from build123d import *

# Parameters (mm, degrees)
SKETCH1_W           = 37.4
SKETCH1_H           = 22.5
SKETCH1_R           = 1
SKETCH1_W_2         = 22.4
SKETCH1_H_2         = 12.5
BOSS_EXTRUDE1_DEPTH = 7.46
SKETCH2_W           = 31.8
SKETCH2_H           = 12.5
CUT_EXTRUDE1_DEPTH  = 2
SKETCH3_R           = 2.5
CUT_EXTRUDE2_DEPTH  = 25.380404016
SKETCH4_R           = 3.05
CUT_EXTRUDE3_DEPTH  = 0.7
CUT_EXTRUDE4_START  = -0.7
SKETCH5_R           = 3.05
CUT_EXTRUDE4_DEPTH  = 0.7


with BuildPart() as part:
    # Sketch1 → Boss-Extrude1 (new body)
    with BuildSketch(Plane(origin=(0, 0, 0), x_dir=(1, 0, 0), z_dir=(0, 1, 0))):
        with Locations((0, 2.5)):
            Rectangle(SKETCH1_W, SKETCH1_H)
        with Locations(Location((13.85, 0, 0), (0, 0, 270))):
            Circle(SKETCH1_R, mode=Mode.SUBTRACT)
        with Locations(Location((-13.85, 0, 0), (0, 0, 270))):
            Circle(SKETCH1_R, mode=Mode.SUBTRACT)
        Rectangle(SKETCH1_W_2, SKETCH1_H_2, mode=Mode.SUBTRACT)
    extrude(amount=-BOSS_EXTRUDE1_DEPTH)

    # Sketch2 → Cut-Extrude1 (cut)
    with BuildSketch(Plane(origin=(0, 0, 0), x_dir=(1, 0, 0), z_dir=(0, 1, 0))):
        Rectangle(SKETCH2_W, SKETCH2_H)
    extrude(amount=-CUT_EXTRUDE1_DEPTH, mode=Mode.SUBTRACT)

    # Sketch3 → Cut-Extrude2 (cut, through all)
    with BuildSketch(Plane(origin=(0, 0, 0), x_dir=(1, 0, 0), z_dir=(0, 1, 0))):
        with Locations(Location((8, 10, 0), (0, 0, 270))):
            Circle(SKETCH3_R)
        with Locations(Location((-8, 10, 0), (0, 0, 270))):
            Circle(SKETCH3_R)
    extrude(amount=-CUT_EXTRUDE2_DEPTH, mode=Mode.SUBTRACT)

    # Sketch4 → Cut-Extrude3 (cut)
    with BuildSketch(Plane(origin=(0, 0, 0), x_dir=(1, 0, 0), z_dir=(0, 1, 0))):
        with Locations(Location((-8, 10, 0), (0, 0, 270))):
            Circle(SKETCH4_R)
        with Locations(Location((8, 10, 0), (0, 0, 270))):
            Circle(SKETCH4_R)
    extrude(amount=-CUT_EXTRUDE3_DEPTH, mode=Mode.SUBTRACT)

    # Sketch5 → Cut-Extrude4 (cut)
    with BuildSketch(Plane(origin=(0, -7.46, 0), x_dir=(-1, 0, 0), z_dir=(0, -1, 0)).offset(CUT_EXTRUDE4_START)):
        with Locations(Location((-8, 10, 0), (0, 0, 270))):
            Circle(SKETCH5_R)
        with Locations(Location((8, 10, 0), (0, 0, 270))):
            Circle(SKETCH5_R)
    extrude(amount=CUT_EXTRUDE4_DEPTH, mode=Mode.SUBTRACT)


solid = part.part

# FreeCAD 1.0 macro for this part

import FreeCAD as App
import Part
import Sketcher
Q = App.Units.Quantity


def add_polygon(sketch, points):
    """Adds a closed chain of lines whose ends are joined by coincident constraints."""
    first, n = sketch.GeometryCount, len(points)
    for a, b in zip(points, points[1:] + points[:1]):
        sketch.addGeometry(Part.LineSegment(App.Vector(*a, 0), App.Vector(*b, 0)), False)
    for i in range(n):
        sketch.addConstraint(Sketcher.Constraint("Coincident", first + i, 2, first + (i + 1) % n, 1))

doc = App.newDocument("Part")
params = doc.addObject("Spreadsheet::Sheet", "Params")
for row, (alias, value) in enumerate([
    ("sketch1_diameter", "2 mm"),
    ("sketch1_width", "37.4 mm"),
    ("sketch1_width2", "22.4 mm"),
    ("sketch1_height", "22.5 mm"),
    ("sketch1_height2", "12.5 mm"),
    ("pad1_length", "7.46 mm"),
    ("sketch2_width", "31.8 mm"),
    ("sketch2_height", "12.5 mm"),
    ("pocket1_length", "2 mm"),
    ("sketch3_diameter", "5 mm"),
    ("sketch4_diameter", "6.1 mm"),
    ("pocket3_length", "0.7 mm"),
    ("sketch5_diameter", "6.1 mm"),
    ("pocket4_length", "0.7 mm"),
], start=1):
    params.set(f"A{row}", alias)
    params.set(f"B{row}", "=" + value)
    params.setAlias(f"B{row}", alias)

body = doc.addObject("PartDesign::Body", "Body")

sketch1 = doc.addObject("Sketcher::SketchObject", "Sketch")
body.addObject(sketch1)
sketch1.AttachmentSupport = (doc.XZ_Plane, [""])
sketch1.MapMode = "FlatFace"
add_polygon(sketch1, [(-18.7, -13.8), (-18.7, 8.8), (18.7, 8.8), (18.7, -13.8)])
sketch1.addGeometry(Part.Circle(App.Vector(-13.8, 0, 0), App.Vector(0, 0, 1), 1), False)
add_polygon(sketch1, [(11.2, 6.2), (-11.2, 6.2), (-11.2, -6.2), (11.2, -6.2)])
sketch1.addGeometry(Part.Circle(App.Vector(13.8, 0, 0), App.Vector(0, 0, 1), 1), False)
sketch1.addConstraint([
    Sketcher.Constraint("Vertical", 0),
    Sketcher.Constraint("Horizontal", 1),
    Sketcher.Constraint("Vertical", 2),
    Sketcher.Constraint("Horizontal", 3),
    Sketcher.Constraint("Horizontal", 5),
    Sketcher.Constraint("Vertical", 6),
    Sketcher.Constraint("Horizontal", 7),
    Sketcher.Constraint("Vertical", 8),
    Sketcher.Constraint("Equal", 4, 9),
    Sketcher.Constraint("Symmetric", 4, 3, 9, 3, -1, 1),
    Sketcher.Constraint("Symmetric", 5, 2, 7, 2, -1, 1),
    Sketcher.Constraint("PointOnObject", 4, 3, -1),
    Sketcher.Constraint("Diameter", 4, Q("2 mm")),
    Sketcher.Constraint("DistanceX", 1, 1, 1, 2, Q("37.4 mm")),
    Sketcher.Constraint("DistanceX", 5, 2, 5, 1, Q("22.4 mm")),
    Sketcher.Constraint("DistanceY", 0, 1, 0, 2, Q("22.5 mm")),
    Sketcher.Constraint("DistanceY", 6, 2, 6, 1, Q("12.5 mm")),
    Sketcher.Constraint("DistanceY", 3, 2, 5, 2, Q("20 mm")),
    Sketcher.Constraint("DistanceX", 0, 2, -1, 1, Q("18.7 mm")),
    Sketcher.Constraint("DistanceX", 4, 3, 9, 3, Q("27.7 mm")),
])
sketch1.setExpression("Constraints[20]", "Params.sketch1_diameter")
sketch1.setExpression("Constraints[21]", "Params.sketch1_width")
sketch1.setExpression("Constraints[22]", "Params.sketch1_width2")
sketch1.setExpression("Constraints[23]", "Params.sketch1_height")
sketch1.setExpression("Constraints[24]", "Params.sketch1_height2")
pad1 = doc.addObject("PartDesign::Pad", "Pad")
body.addObject(pad1)
pad1.Profile = sketch1
pad1.setExpression("Length", "Params.pad1_length")

sketch2 = doc.addObject("Sketcher::SketchObject", "Sketch001")
body.addObject(sketch2)
sketch2.AttachmentSupport = (doc.XZ_Plane, [""])
sketch2.MapMode = "FlatFace"
add_polygon(sketch2, [(-16, -6), (-16, 6), (16, 6), (16, -6)])
sketch2.addConstraint([
    Sketcher.Constraint("Vertical", 0),
    Sketcher.Constraint("Horizontal", 1),
    Sketcher.Constraint("Vertical", 2),
    Sketcher.Constraint("Horizontal", 3),
    Sketcher.Constraint("Symmetric", 0, 2, 2, 2, -1, 1),
    Sketcher.Constraint("DistanceX", 1, 1, 1, 2, Q("31.8 mm")),
    Sketcher.Constraint("DistanceY", 0, 1, 0, 2, Q("12.5 mm")),
])
sketch2.setExpression("Constraints[9]", "Params.sketch2_width")
sketch2.setExpression("Constraints[10]", "Params.sketch2_height")
pocket1 = doc.addObject("PartDesign::Pocket", "Pocket")
body.addObject(pocket1)
pocket1.Profile = sketch2
pocket1.setExpression("Length", "Params.pocket1_length")
pocket1.Reversed = True

sketch3 = doc.addObject("Sketcher::SketchObject", "Sketch002")
body.addObject(sketch3)
sketch3.AttachmentSupport = (doc.XZ_Plane, [""])
sketch3.MapMode = "FlatFace"
sketch3.addGeometry([
    Part.Circle(App.Vector(8, -10, 0), App.Vector(0, 0, 1), 2.5),
    Part.Circle(App.Vector(-8, -10, 0), App.Vector(0, 0, 1), 2.5),
], False)
sketch3.addConstraint([
    Sketcher.Constraint("Equal", 0, 1),
    Sketcher.Constraint("Symmetric", 0, 3, 1, 3, -2),
    Sketcher.Constraint("Diameter", 0, Q("5 mm")),
    Sketcher.Constraint("DistanceX", -1, 1, 0, 3, Q("8 mm")),
    Sketcher.Constraint("DistanceY", 0, 3, -1, 1, Q("10 mm")),
])
sketch3.setExpression("Constraints[2]", "Params.sketch3_diameter")
pocket2 = doc.addObject("PartDesign::Pocket", "Pocket001")
body.addObject(pocket2)
pocket2.Profile = sketch3
pocket2.Type = "ThroughAll"
pocket2.Reversed = True

sketch4 = doc.addObject("Sketcher::SketchObject", "Sketch003")
body.addObject(sketch4)
sketch4.AttachmentSupport = (doc.XZ_Plane, [""])
sketch4.MapMode = "FlatFace"
sketch4.addGeometry([
    Part.Circle(App.Vector(-8, -10, 0), App.Vector(0, 0, 1), 3),
    Part.Circle(App.Vector(8, -10, 0), App.Vector(0, 0, 1), 3),
], False)
sketch4.addConstraint([
    Sketcher.Constraint("Equal", 0, 1),
    Sketcher.Constraint("Symmetric", 0, 3, 1, 3, -2),
    Sketcher.Constraint("Diameter", 0, Q("6.1 mm")),
    Sketcher.Constraint("DistanceX", 0, 3, -1, 1, Q("8 mm")),
    Sketcher.Constraint("DistanceY", 0, 3, -1, 1, Q("10 mm")),
])
sketch4.setExpression("Constraints[2]", "Params.sketch4_diameter")
pocket3 = doc.addObject("PartDesign::Pocket", "Pocket002")
body.addObject(pocket3)
pocket3.Profile = sketch4
pocket3.setExpression("Length", "Params.pocket3_length")
pocket3.Reversed = True

sketch5 = doc.addObject("Sketcher::SketchObject", "Sketch004")
body.addObject(sketch5)
sketch5.AttachmentSupport = (doc.XZ_Plane, [""])
sketch5.MapMode = "FlatFace"
sketch5.AttachmentOffset = App.Placement(App.Vector(0, 0, 6.76), App.Rotation())
sketch5.addGeometry([
    Part.Circle(App.Vector(8, -10, 0), App.Vector(0, 0, 1), 3),
    Part.Circle(App.Vector(-8, -10, 0), App.Vector(0, 0, 1), 3),
], False)
sketch5.addConstraint([
    Sketcher.Constraint("Equal", 0, 1),
    Sketcher.Constraint("Symmetric", 0, 3, 1, 3, -2),
    Sketcher.Constraint("Diameter", 0, Q("6.1 mm")),
    Sketcher.Constraint("DistanceX", -1, 1, 0, 3, Q("8 mm")),
    Sketcher.Constraint("DistanceY", 0, 3, -1, 1, Q("10 mm")),
])
sketch5.setExpression("Constraints[2]", "Params.sketch5_diameter")
pocket4 = doc.addObject("PartDesign::Pocket", "Pocket003")
body.addObject(pocket4)
pocket4.Profile = sketch5
pocket4.setExpression("Length", "Params.pocket4_length")
pocket4.Reversed = True

doc.recompute()
